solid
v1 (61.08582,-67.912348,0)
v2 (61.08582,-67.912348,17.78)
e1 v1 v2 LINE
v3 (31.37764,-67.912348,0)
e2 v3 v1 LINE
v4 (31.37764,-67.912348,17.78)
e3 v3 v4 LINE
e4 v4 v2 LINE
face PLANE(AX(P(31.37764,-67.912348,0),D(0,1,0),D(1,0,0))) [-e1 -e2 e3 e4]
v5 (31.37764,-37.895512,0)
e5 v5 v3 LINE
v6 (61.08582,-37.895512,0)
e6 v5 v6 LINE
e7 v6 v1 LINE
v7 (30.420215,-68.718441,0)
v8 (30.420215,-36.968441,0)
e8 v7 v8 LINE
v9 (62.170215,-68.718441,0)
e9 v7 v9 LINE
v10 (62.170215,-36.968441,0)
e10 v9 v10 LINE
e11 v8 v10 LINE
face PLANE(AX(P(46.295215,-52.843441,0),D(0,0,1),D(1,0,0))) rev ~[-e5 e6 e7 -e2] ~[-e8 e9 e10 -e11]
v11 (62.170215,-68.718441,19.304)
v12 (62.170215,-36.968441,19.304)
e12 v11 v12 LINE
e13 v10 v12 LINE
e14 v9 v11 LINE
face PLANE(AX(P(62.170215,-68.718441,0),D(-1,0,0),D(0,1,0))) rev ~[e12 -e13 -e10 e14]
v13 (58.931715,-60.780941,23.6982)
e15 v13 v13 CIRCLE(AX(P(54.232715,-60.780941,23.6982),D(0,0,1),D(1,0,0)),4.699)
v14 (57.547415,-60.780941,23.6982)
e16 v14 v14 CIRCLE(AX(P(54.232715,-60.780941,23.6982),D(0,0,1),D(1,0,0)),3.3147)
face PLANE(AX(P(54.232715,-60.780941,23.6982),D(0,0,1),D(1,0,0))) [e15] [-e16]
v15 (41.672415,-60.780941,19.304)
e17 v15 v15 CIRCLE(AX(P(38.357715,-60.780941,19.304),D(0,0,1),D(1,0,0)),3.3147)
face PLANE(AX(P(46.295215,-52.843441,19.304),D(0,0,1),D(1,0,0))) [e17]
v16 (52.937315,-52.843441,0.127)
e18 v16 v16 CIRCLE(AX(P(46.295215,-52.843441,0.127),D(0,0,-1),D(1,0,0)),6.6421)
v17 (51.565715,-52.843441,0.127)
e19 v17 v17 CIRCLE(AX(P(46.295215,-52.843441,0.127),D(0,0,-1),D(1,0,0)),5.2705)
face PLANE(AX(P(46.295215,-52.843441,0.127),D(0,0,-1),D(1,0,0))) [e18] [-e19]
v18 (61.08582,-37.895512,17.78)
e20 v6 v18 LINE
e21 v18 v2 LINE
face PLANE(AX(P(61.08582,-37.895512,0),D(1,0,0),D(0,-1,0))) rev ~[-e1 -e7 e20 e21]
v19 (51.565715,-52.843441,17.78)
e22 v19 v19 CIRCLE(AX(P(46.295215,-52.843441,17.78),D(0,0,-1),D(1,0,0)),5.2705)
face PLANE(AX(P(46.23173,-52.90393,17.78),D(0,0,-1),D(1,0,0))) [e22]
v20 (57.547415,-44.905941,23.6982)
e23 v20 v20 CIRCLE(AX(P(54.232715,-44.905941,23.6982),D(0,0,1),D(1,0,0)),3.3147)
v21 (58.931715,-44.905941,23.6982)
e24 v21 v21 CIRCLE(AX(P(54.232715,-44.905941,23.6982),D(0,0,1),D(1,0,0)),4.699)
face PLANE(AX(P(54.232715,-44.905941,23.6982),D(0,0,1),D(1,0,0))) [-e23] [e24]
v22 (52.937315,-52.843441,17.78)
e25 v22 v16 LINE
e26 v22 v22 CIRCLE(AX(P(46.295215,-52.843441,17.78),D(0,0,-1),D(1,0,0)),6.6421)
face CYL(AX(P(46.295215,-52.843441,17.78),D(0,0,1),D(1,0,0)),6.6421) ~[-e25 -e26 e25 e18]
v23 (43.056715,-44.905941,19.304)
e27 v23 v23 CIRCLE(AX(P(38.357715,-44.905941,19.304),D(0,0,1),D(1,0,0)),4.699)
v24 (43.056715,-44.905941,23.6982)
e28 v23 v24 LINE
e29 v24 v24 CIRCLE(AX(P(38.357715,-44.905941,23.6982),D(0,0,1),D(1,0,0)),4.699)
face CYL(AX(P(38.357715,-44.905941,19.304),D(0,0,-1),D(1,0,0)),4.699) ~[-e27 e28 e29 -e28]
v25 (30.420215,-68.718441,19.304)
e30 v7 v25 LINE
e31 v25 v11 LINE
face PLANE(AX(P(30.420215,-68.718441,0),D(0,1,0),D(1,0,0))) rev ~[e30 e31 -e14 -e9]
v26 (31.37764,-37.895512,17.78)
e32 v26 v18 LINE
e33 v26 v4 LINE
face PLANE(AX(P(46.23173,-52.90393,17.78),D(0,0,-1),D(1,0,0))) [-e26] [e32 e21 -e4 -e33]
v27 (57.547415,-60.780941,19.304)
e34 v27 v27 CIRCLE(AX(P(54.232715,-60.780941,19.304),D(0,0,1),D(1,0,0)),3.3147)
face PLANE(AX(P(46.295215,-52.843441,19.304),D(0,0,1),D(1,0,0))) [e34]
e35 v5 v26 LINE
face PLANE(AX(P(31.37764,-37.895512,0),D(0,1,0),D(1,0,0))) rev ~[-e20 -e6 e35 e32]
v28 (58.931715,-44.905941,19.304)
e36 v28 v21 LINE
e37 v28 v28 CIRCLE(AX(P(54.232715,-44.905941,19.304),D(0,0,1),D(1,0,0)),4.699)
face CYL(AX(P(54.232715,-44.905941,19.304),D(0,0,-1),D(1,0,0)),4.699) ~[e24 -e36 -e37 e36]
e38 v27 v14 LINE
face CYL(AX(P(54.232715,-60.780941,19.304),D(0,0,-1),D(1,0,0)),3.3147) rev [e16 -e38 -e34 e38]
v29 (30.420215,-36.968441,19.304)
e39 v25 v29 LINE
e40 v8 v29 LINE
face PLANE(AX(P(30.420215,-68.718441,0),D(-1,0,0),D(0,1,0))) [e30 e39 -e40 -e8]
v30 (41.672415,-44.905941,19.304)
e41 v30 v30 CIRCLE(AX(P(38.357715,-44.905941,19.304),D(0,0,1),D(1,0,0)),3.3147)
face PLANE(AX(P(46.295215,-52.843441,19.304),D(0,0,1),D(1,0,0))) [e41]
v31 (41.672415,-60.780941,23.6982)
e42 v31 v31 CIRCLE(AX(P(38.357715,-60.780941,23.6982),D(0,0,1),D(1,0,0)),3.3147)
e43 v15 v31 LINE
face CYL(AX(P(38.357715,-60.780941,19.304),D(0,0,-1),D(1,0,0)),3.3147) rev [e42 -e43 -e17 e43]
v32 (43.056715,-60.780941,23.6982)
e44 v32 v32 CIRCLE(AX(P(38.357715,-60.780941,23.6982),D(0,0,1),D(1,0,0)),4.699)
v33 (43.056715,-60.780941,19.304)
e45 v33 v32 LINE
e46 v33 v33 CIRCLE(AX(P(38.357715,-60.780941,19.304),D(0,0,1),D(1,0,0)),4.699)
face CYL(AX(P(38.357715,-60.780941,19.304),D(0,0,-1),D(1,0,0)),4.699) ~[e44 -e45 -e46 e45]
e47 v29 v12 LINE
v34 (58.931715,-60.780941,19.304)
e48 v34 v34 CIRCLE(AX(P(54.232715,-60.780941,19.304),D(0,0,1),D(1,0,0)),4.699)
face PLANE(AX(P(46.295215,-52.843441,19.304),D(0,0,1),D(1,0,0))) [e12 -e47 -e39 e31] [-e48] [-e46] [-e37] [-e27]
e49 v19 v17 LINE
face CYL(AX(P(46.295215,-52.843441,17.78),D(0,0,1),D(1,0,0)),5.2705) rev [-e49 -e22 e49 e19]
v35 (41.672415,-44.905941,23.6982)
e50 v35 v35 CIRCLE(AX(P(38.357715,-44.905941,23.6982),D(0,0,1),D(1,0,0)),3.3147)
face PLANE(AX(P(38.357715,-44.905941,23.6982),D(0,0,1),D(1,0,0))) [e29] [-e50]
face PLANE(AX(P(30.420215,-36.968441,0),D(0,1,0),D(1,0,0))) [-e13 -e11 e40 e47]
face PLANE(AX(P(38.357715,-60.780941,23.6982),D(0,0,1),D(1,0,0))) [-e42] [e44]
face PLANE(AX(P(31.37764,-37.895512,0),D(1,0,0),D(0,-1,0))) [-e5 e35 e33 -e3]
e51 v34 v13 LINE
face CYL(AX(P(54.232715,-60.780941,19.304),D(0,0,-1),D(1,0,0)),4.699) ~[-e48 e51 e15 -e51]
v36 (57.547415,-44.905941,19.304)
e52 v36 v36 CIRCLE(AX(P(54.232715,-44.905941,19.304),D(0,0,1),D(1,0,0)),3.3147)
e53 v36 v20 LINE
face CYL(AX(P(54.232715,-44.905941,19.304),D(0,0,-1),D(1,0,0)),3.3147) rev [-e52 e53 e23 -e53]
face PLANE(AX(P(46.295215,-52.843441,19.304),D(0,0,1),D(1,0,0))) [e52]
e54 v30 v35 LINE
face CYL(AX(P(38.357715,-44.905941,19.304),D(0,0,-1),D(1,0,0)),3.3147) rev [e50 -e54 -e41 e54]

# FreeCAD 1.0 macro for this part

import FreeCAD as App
import Part
import Sketcher

V = App.Vector
Q = App.Units.Quantity


def add_polygon(sketch, points):
    """Adds a closed chain of lines whose ends are joined by coincident constraints."""
    first, n = sketch.GeometryCount, len(points)
    for a, b in zip(points, points[1:] + points[:1]):
        sketch.addGeometry(Part.LineSegment(App.Vector(*a, 0), App.Vector(*b, 0)), False)
    for i in range(n):
        sketch.addConstraint(Sketcher.Constraint("Coincident", first + i, 2, first + (i + 1) % n, 1))

doc = App.newDocument("Part")
body = doc.addObject("PartDesign::Body", "Body")

sketch1 = body.newObject("Sketcher::SketchObject", "Sketch")
sketch1.AttachmentSupport = (doc.getObject("XY_Plane"), [""])
sketch1.MapMode = "FlatFace"
add_polygon(sketch1, [(30, -37), (30, -69), (62, -69), (62, -37)])
sketch1.addConstraint([
    Sketcher.Constraint("Vertical", 0),
    Sketcher.Constraint("Horizontal", 1),
    Sketcher.Constraint("Vertical", 2),
    Sketcher.Constraint("Horizontal", 3),
    Sketcher.Constraint("Equal", 3, 0),
    Sketcher.Constraint("DistanceX", 1, 1, 1, 2, Q("1.25 in")),
    Sketcher.Constraint("DistanceY", 0, 2, -1, 1, Q("68.718441 mm")),
    Sketcher.Constraint("DistanceX", -1, 1, 0, 2, Q("30.420215 mm")),
])
pad1 = body.newObject("PartDesign::Pad", "Pad")
pad1.Profile = sketch1
pad1.Length = Q("0.76 in")

sketch2 = body.newObject("Sketcher::SketchObject", "Sketch001")
sketch2.AttachmentSupport = (doc.getObject("XY_Plane"), [""])
sketch2.MapMode = "FlatFace"
sketch2.AttachmentOffset = App.Placement(V(0, 0, 0.76 * 25.4), App.Rotation())
sketch2.addGeometry([
    Part.Circle(V(38.4, -44.9, 0), V(0, 0, 1), 4.7),
    Part.Circle(V(38.4, -44.9, 0), V(0, 0, 1), 3.3),
    Part.Circle(V(54.2, -44.9, 0), V(0, 0, 1), 4.7),
    Part.Circle(V(54.2, -44.9, 0), V(0, 0, 1), 3.3),
    Part.Circle(V(54.2, -60.8, 0), V(0, 0, 1), 4.7),
    Part.Circle(V(54.2, -60.8, 0), V(0, 0, 1), 3.3),
    Part.Circle(V(38.4, -60.8, 0), V(0, 0, 1), 4.7),
    Part.Circle(V(38.4, -60.8, 0), V(0, 0, 1), 3.3),
], False)
sketch2.addConstraint([
    Sketcher.Constraint("Coincident", 1, 3, 0, 3),
    Sketcher.Constraint("Coincident", 3, 3, 2, 3),
    Sketcher.Constraint("Coincident", 5, 3, 4, 3),
    Sketcher.Constraint("Coincident", 7, 3, 6, 3),
    Sketcher.Constraint("Equal", 0, 2),
    Sketcher.Constraint("Equal", 1, 3),
    Sketcher.Constraint("Equal", 2, 4),
    Sketcher.Constraint("Equal", 3, 5),
    Sketcher.Constraint("Equal", 4, 6),
    Sketcher.Constraint("Equal", 5, 7),
    Sketcher.Constraint("Horizontal", 1, 3, 2, 3),
    Sketcher.Constraint("Horizontal", 5, 3, 6, 3),
    Sketcher.Constraint("Vertical", 3, 3, 4, 3),
    Sketcher.Constraint("Vertical", 1, 3, 6, 3),
    Sketcher.Constraint("Diameter", 0, Q("0.37 in")),
    Sketcher.Constraint("Diameter", 1, Q("0.261 in")),
    Sketcher.Constraint("DistanceX", 0, 3, 2, 3, Q("0.625 in")),
    Sketcher.Constraint("DistanceY", 4, 3, 2, 3, Q("0.625 in")),
    Sketcher.Constraint("DistanceY", 0, 3, -1, 1, Q("44.905941 mm")),
    Sketcher.Constraint("DistanceX", -1, 1, 0, 3, Q("38.357715 mm")),
])
pad2 = body.newObject("PartDesign::Pad", "Pad001")
pad2.Profile = sketch2
pad2.Length = Q("0.173 in")

sketch3 = body.newObject("Sketcher::SketchObject", "Sketch002")
sketch3.AttachmentSupport = (doc.getObject("XY_Plane"), [""])
sketch3.MapMode = "FlatFace"
add_polygon(sketch3, [(31, -68), (31, -38), (61, -38), (61, -68)])
sketch3.addConstraint([
    Sketcher.Constraint("Vertical", 0),
    Sketcher.Constraint("Horizontal", 1),
    Sketcher.Constraint("Vertical", 2),
    Sketcher.Constraint("Horizontal", 3),
    Sketcher.Constraint("DistanceX", 1, 1, 1, 2, Q("29.70818 mm")),
    Sketcher.Constraint("DistanceY", 0, 1, 0, 2, Q("30.016836 mm")),
    Sketcher.Constraint("DistanceX", -1, 1, 0, 2, Q("31.37764 mm")),
    Sketcher.Constraint("DistanceY", 0, 2, -1, 1, Q("37.895512 mm")),
])
pocket1 = body.newObject("PartDesign::Pocket", "Pocket")
pocket1.Profile = sketch3
pocket1.Length = Q("0.7 in")
pocket1.Reversed = True

sketch4 = body.newObject("Sketcher::SketchObject", "Sketch003")
sketch4.AttachmentSupport = (doc.getObject("XY_Plane"), [""])
sketch4.MapMode = "FlatFace"
sketch4.AttachmentOffset = App.Placement(V(0, 0, 0.7 * 25.4), App.Rotation())
sketch4.addGeometry([
    Part.Circle(V(46, -53, 0), V(0, 0, 1), 7),
    Part.Circle(V(46, -53, 0), V(0, 0, 1), 5),
], False)
sketch4.addConstraint([
    Sketcher.Constraint("Coincident", 1, 3, 0, 3),
    Sketcher.Constraint("Diameter", 0, Q("0.523 in")),
    Sketcher.Constraint("Diameter", 1, Q("0.415 in")),
    Sketcher.Constraint("DistanceY", 0, 3, -1, 1, Q("52.843441 mm")),
    Sketcher.Constraint("DistanceX", -1, 1, 0, 3, Q("46.295215 mm")),
])
pad3 = body.newObject("PartDesign::Pad", "Pad002")
pad3.Profile = sketch4
pad3.Length = Q("0.695 in")
pad3.Reversed = True

doc.recompute()
